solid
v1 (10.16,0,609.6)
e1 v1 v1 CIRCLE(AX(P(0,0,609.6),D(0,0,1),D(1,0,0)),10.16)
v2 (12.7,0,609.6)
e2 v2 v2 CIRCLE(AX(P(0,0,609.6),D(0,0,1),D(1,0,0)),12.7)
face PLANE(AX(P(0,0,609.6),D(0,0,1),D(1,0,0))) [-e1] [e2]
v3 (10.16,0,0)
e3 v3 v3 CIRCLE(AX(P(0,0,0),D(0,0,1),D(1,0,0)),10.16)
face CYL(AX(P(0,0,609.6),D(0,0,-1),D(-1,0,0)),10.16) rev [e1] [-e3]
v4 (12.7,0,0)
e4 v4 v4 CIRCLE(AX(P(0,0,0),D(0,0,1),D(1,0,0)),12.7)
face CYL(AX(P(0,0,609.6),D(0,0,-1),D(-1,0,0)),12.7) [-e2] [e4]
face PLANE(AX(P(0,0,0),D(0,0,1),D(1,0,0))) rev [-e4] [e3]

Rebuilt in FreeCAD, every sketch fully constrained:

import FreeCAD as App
import Part
import Sketcher
from FreeCAD import Vector
Q = App.Units.Quantity

doc = App.newDocument("Part")
body = doc.addObject("PartDesign::Body", "Body")

# Sketch on XY plane
sketch1 = doc.addObject("Sketcher::SketchObject", "Sketch")
body.addObject(sketch1)
sketch1.AttachmentSupport = (doc.XY_Plane, [""])
sketch1.MapMode = "FlatFace"
sketch1.addGeometry(Part.Circle(Vector(0, 0, 0), Vector(0, 0, 1), 13), False)
sketch1.addGeometry(Part.Circle(Vector(0, 0, 0), Vector(0, 0, 1), 10), False)
sketch1.addConstraint(Sketcher.Constraint("Coincident", 0, 3, -1, 1))
sketch1.addConstraint(Sketcher.Constraint("Coincident", 1, 3, -1, 1))
sketch1.addConstraint(Sketcher.Constraint("Diameter", 0, Q("1 in")))
sketch1.addConstraint(Sketcher.Constraint("Diameter", 1, Q("0.8 in")))
pad1 = doc.addObject("PartDesign::Pad", "Pad")
body.addObject(pad1)
pad1.Profile = sketch1
pad1.Length = Q("24 in")

doc.recompute()
